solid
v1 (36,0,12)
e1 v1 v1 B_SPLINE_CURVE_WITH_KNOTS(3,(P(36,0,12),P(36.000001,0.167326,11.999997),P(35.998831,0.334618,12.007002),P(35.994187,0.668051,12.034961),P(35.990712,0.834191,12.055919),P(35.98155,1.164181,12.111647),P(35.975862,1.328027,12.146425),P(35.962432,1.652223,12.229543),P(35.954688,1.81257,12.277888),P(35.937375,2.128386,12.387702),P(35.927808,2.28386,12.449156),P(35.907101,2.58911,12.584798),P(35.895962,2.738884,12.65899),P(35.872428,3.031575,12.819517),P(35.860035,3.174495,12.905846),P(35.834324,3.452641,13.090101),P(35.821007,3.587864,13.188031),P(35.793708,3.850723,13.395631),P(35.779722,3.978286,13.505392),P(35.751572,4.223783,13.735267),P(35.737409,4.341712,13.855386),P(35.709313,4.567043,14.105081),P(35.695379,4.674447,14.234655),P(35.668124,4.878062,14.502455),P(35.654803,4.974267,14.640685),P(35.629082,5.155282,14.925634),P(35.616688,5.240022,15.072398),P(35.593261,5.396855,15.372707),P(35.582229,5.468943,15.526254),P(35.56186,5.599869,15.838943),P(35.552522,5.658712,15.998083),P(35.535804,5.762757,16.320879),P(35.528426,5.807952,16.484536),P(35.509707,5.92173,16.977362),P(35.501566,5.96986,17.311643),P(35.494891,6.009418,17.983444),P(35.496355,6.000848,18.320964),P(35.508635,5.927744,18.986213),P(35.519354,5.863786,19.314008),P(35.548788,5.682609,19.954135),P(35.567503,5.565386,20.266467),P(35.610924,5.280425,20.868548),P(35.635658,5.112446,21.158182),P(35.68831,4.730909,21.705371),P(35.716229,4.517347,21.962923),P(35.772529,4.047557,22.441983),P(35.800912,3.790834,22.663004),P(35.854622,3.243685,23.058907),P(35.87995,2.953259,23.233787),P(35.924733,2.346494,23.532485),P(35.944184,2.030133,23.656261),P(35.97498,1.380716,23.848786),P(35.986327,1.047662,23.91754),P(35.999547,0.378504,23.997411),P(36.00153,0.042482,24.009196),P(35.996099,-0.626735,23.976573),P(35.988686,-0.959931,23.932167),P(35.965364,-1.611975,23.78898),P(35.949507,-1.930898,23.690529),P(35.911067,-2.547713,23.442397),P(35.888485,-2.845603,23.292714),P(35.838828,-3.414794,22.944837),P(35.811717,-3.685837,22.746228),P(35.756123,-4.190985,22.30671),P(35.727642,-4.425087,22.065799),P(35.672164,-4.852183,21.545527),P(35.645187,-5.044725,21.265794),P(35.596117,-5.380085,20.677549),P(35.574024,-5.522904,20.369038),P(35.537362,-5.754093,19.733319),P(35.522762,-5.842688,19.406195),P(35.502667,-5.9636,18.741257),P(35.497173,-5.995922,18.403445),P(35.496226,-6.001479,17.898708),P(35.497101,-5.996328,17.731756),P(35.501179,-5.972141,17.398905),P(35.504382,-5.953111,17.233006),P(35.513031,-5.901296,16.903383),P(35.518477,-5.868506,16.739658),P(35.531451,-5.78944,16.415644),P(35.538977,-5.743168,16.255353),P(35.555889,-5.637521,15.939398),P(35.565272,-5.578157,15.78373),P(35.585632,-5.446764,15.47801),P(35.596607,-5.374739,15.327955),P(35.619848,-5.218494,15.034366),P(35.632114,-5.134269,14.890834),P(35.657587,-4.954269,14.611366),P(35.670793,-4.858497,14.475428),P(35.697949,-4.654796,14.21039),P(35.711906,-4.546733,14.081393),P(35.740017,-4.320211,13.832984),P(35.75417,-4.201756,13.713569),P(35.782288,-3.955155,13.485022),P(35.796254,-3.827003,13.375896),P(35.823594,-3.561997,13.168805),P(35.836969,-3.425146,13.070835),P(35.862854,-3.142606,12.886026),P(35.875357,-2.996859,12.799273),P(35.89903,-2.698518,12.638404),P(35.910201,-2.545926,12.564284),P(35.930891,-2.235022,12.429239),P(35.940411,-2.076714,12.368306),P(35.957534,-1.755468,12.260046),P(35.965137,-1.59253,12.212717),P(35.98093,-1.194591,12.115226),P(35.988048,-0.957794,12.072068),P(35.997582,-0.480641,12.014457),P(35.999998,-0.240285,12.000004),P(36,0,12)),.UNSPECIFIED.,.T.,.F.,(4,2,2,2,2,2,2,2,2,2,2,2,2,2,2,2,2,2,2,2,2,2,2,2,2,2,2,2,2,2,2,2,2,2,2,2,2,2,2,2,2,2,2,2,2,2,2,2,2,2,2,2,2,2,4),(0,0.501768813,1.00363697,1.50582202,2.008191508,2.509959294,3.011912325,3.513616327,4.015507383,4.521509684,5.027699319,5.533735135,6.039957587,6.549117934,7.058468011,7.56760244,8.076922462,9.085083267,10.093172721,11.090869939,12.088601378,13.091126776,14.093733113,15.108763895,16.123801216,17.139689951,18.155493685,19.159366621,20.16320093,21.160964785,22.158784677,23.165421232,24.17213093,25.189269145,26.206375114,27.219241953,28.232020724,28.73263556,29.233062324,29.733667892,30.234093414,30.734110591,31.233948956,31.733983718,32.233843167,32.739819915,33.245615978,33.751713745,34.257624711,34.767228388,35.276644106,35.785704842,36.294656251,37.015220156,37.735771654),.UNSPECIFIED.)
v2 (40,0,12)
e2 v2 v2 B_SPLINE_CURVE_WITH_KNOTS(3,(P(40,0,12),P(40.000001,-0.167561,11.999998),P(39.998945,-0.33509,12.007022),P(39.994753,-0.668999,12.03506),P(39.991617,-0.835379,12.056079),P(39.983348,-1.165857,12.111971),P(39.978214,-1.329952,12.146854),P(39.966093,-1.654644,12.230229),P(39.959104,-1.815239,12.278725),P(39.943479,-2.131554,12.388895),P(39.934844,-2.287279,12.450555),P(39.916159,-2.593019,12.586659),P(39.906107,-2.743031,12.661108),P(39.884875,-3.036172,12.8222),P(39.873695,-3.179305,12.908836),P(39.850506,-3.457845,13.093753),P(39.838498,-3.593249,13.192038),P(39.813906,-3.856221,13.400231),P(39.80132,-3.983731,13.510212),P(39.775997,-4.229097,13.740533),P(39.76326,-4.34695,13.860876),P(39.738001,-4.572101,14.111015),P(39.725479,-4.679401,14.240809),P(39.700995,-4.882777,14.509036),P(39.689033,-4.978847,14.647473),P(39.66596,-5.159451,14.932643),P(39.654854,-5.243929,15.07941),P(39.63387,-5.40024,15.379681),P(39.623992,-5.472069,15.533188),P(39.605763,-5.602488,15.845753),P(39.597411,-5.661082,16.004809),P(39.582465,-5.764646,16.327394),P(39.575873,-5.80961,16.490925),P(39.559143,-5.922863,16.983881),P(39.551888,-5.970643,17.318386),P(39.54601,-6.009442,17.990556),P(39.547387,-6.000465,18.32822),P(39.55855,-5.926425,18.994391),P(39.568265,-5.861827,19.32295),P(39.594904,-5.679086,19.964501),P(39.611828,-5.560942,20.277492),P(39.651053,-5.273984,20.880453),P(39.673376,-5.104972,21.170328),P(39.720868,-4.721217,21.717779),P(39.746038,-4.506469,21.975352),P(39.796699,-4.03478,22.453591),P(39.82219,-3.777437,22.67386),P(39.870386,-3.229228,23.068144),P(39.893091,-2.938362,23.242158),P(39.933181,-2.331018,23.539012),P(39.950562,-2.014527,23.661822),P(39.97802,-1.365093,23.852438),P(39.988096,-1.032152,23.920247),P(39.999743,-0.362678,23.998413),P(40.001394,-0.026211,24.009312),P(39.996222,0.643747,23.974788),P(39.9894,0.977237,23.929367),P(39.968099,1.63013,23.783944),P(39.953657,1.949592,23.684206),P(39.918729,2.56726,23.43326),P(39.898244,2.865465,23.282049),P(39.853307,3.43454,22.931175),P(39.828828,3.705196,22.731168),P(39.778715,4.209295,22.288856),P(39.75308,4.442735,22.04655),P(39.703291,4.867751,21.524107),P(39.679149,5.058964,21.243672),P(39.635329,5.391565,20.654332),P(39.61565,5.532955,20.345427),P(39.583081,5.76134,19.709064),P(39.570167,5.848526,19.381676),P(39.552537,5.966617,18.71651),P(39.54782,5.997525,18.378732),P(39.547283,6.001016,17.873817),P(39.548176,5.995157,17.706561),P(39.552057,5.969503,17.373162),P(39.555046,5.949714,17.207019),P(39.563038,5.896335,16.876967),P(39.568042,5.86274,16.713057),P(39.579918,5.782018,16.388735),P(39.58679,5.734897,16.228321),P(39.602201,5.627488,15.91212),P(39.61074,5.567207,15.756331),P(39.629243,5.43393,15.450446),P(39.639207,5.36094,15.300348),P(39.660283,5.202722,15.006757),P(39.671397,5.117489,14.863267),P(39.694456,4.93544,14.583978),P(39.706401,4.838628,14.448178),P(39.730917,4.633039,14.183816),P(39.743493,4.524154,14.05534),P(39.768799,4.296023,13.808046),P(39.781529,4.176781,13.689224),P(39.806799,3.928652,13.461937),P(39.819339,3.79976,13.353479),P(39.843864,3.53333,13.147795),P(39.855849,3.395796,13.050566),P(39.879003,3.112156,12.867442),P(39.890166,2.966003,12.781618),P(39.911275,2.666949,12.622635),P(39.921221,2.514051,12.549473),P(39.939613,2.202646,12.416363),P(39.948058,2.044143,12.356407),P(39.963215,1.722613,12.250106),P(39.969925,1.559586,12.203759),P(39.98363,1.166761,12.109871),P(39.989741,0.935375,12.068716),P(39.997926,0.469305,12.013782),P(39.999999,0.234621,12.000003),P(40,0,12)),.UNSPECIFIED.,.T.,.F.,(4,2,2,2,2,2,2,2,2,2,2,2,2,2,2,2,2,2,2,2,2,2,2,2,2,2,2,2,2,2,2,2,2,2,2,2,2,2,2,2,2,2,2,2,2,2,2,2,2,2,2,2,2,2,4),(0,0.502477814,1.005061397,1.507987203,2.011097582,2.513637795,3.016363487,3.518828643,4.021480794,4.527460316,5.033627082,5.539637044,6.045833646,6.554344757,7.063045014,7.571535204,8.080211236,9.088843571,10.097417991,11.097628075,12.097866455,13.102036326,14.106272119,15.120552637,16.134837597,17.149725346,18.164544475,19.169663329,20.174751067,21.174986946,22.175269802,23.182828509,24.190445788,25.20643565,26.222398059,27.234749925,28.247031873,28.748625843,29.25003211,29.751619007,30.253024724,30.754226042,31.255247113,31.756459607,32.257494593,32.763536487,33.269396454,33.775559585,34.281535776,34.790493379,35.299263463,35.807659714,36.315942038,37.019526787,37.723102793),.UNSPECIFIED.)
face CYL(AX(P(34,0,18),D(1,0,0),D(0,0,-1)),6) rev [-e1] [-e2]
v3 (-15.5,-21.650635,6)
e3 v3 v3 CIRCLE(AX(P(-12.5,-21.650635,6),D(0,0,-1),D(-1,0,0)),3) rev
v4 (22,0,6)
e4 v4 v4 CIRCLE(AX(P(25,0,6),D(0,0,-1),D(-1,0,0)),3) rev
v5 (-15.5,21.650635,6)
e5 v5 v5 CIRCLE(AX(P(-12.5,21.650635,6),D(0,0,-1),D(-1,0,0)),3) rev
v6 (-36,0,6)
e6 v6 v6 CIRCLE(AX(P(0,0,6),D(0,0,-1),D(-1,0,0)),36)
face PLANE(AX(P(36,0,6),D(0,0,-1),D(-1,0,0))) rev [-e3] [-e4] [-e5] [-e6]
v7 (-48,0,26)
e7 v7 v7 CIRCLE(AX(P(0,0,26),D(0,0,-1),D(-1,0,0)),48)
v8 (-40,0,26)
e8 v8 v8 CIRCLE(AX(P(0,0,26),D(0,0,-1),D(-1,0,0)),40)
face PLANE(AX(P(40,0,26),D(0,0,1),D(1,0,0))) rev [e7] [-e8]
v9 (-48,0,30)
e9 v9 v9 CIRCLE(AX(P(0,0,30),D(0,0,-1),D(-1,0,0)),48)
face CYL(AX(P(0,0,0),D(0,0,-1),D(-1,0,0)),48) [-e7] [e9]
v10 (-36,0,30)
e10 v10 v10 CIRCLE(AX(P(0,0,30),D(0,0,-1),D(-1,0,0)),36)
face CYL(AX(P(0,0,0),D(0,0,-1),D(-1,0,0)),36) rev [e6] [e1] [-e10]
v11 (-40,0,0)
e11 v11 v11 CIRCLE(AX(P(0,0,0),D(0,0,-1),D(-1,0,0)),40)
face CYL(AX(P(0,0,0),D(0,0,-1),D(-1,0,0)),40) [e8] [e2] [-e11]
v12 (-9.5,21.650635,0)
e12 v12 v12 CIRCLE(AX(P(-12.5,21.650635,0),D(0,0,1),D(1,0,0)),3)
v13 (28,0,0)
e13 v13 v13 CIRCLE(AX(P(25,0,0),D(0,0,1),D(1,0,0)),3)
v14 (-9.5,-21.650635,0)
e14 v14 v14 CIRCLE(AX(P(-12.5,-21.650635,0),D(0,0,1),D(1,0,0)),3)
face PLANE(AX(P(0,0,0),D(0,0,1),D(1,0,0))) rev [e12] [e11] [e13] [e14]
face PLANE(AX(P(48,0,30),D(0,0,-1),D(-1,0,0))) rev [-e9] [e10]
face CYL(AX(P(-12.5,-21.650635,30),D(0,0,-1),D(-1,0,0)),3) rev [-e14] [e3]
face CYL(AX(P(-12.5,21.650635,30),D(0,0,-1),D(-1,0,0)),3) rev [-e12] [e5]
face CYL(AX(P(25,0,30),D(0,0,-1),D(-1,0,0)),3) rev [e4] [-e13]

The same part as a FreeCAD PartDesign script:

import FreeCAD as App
import Part
import Sketcher

V = App.Vector
Q = App.Units.Quantity


def add_polygon(sketch, points):
    """Adds a closed chain of lines whose ends are joined by coincident constraints."""
    first, n = sketch.GeometryCount, len(points)
    for a, b in zip(points, points[1:] + points[:1]):
        sketch.addGeometry(Part.LineSegment(App.Vector(*a, 0), App.Vector(*b, 0)), False)
    for i in range(n):
        sketch.addConstraint(Sketcher.Constraint("Coincident", first + i, 2, first + (i + 1) % n, 1))

doc = App.newDocument("Part")
body = doc.addObject("PartDesign::Body", "Body")

sketch1 = body.newObject("Sketcher::SketchObject", "Sketch")
sketch1.AttachmentSupport = (doc.getObject("XZ_Plane"), [""])
sketch1.MapMode = "FlatFace"
add_polygon(sketch1, [(40, 0), (0, 0), (0, 6), (36, 6), (36, 30), (48, 30), (48, 26), (40, 26)])
sketch1.addConstraint(Sketcher.Constraint("Horizontal", 0))
sketch1.addConstraint(Sketcher.Constraint("Vertical", 1))
sketch1.addConstraint(Sketcher.Constraint("Horizontal", 2))
sketch1.addConstraint(Sketcher.Constraint("Vertical", 3))
sketch1.addConstraint(Sketcher.Constraint("Horizontal", 4))
sketch1.addConstraint(Sketcher.Constraint("Vertical", 5))
sketch1.addConstraint(Sketcher.Constraint("Horizontal", 6))
sketch1.addConstraint(Sketcher.Constraint("Vertical", 7))
sketch1.addConstraint(Sketcher.Constraint("Coincident", 0, 2, -1, 1))
sketch1.addConstraint(Sketcher.Constraint("DistanceX", 0, 2, 0, 1, Q("40 mm")))
sketch1.addConstraint(Sketcher.Constraint("DistanceX", 2, 1, 2, 2, Q("36 mm")))
sketch1.addConstraint(Sketcher.Constraint("DistanceX", 4, 1, 4, 2, Q("12 mm")))
sketch1.addConstraint(Sketcher.Constraint("DistanceY", 1, 1, 1, 2, Q("6 mm")))
sketch1.addConstraint(Sketcher.Constraint("DistanceY", 3, 1, 3, 2, Q("24 mm")))
sketch1.addConstraint(Sketcher.Constraint("DistanceY", 5, 2, 5, 1, Q("4 mm")))
revolution = body.newObject("PartDesign::Revolution", "Revolution")
revolution.Profile = sketch1
revolution.ReferenceAxis = (sketch1, ["V_Axis"])
revolution.Angle = 360

sketch2 = body.newObject("Sketcher::SketchObject", "Sketch001")
sketch2.AttachmentSupport = (doc.getObject("XY_Plane"), [""])
sketch2.MapMode = "FlatFace"
sketch2.addGeometry(Part.Circle(V(25, 0, 0), V(0, 0, 1), 3), False)
sketch2.addGeometry(Part.Circle(V(-12.5, 21.7, 0), V(0, 0, 1), 3), False)
sketch2.addGeometry(Part.Circle(V(-12.5, -21.7, 0), V(0, 0, 1), 3), False)
sketch2.addConstraint(Sketcher.Constraint("Equal", 0, 1))
sketch2.addConstraint(Sketcher.Constraint("Equal", 1, 2))
sketch2.addConstraint(Sketcher.Constraint("Symmetric", 1, 3, 2, 3, -1))
sketch2.addConstraint(Sketcher.Constraint("PointOnObject", 0, 3, -1))
sketch2.addConstraint(Sketcher.Constraint("Diameter", 0, Q("6 mm")))
sketch2.addConstraint(Sketcher.Constraint("DistanceX", -1, 1, 0, 3, Q("25 mm")))
sketch2.addConstraint(Sketcher.Constraint("DistanceX", 1, 3, -1, 1, Q("12.5 mm")))
sketch2.addConstraint(Sketcher.Constraint("DistanceY", 2, 3, 1, 3, Q("43.30127 mm")))
pocket1 = body.newObject("PartDesign::Pocket", "Pocket")
pocket1.Profile = sketch2
pocket1.Type = "ThroughAll"
pocket1.Reversed = True

sketch3 = body.newObject("Sketcher::SketchObject", "Sketch002")
sketch3.AttachmentSupport = (doc.getObject("YZ_Plane"), [""])
sketch3.MapMode = "FlatFace"
sketch3.AttachmentOffset = App.Placement(V(0, 0, 40), App.Rotation())
sketch3.addGeometry(Part.Circle(V(0, 18, 0), V(0, 0, 1), 6), False)
sketch3.addConstraint(Sketcher.Constraint("PointOnObject", 0, 3, -2))
sketch3.addConstraint(Sketcher.Constraint("Diameter", 0, Q("12 mm")))
sketch3.addConstraint(Sketcher.Constraint("DistanceY", -1, 1, 0, 3, Q("18 mm")))
pocket2 = body.newObject("PartDesign::Pocket", "Pocket001")
pocket2.Profile = sketch3
pocket2.Length = 6

doc.recompute()
